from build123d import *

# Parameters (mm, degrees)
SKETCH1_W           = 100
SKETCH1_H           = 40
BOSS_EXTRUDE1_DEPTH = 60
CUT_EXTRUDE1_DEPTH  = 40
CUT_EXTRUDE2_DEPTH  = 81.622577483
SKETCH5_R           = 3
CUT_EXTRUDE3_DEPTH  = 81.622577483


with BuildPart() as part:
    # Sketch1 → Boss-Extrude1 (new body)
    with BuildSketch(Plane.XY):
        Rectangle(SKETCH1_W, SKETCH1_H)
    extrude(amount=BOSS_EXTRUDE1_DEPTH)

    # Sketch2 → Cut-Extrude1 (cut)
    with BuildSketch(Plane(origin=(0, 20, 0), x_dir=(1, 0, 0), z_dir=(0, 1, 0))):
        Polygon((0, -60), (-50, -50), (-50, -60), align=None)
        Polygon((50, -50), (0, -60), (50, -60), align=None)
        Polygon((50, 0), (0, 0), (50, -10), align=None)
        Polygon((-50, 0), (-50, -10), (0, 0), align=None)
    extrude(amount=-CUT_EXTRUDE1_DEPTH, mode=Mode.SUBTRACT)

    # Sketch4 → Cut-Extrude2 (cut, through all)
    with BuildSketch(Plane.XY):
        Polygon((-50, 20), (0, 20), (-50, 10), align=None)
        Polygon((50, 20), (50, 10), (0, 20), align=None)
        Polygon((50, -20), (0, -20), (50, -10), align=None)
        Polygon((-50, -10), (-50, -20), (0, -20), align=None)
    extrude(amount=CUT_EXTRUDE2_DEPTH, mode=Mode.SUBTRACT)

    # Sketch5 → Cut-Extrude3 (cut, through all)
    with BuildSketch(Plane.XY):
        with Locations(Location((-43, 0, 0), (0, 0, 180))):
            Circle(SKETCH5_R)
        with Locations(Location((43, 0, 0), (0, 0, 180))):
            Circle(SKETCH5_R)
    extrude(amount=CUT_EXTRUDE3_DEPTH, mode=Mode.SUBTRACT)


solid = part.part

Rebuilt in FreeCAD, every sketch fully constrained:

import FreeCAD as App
import Part
import Sketcher

V = App.Vector
Q = App.Units.Quantity

doc = App.newDocument("Part")
body = doc.addObject("PartDesign::Body", "Body")

sketch1 = body.newObject("Sketcher::SketchObject", "Sketch")
sketch1.AttachmentSupport = (doc.getObject("XY_Plane"), [""])
sketch1.MapMode = "FlatFace"
sketch1.addGeometry(Part.LineSegment(V(-50, 20, 0), V(-50, -20, 0)), False)
sketch1.addGeometry(Part.LineSegment(V(-50, -20, 0), V(50, -20, 0)), False)
sketch1.addGeometry(Part.LineSegment(V(50, -20, 0), V(50, 20, 0)), False)
sketch1.addGeometry(Part.LineSegment(V(50, 20, 0), V(-50, 20, 0)), False)
sketch1.addConstraint(Sketcher.Constraint("Coincident", 0, 2, 1, 1))
sketch1.addConstraint(Sketcher.Constraint("Coincident", 1, 2, 2, 1))
sketch1.addConstraint(Sketcher.Constraint("Coincident", 2, 2, 3, 1))
sketch1.addConstraint(Sketcher.Constraint("Coincident", 3, 2, 0, 1))
sketch1.addConstraint(Sketcher.Constraint("Vertical", 0))
sketch1.addConstraint(Sketcher.Constraint("Horizontal", 1))
sketch1.addConstraint(Sketcher.Constraint("Vertical", 2))
sketch1.addConstraint(Sketcher.Constraint("Horizontal", 3))
sketch1.addConstraint(Sketcher.Constraint("Symmetric", 0, 2, 2, 2, -1, 1))
sketch1.addConstraint(Sketcher.Constraint("DistanceX", 1, 1, 1, 2, Q("100 mm")))
sketch1.addConstraint(Sketcher.Constraint("DistanceY", 0, 2, 0, 1, Q("40 mm")))
pad1 = body.newObject("PartDesign::Pad", "Pad")
pad1.Profile = sketch1
pad1.Length = 60

sketch2 = body.newObject("Sketcher::SketchObject", "Sketch001")
sketch2.AttachmentSupport = (doc.getObject("XZ_Plane"), [""])
sketch2.MapMode = "FlatFace"
sketch2.AttachmentOffset = App.Placement(V(0, 0, -20), App.Rotation())
sketch2.addGeometry(Part.LineSegment(V(0, 60, 0), V(-50, 50, 0)), False)
sketch2.addGeometry(Part.LineSegment(V(-50, 50, 0), V(-50, 60, 0)), False)
sketch2.addGeometry(Part.LineSegment(V(-50, 60, 0), V(0, 60, 0)), False)
sketch2.addGeometry(Part.LineSegment(V(50, 50, 0), V(0, 60, 0)), False)
sketch2.addGeometry(Part.LineSegment(V(0, 60, 0), V(50, 60, 0)), False)
sketch2.addGeometry(Part.LineSegment(V(50, 60, 0), V(50, 50, 0)), False)
sketch2.addGeometry(Part.LineSegment(V(50, 0, 0), V(0, 0, 0)), False)
sketch2.addGeometry(Part.LineSegment(V(0, 0, 0), V(50, 10, 0)), False)
sketch2.addGeometry(Part.LineSegment(V(50, 10, 0), V(50, 0, 0)), False)
sketch2.addGeometry(Part.LineSegment(V(-50, 0, 0), V(-50, 10, 0)), False)
sketch2.addGeometry(Part.LineSegment(V(-50, 10, 0), V(0, 0, 0)), False)
sketch2.addGeometry(Part.LineSegment(V(0, 0, 0), V(-50, 0, 0)), False)
sketch2.addConstraint(Sketcher.Constraint("Coincident", 0, 2, 1, 1))
sketch2.addConstraint(Sketcher.Constraint("Coincident", 1, 2, 2, 1))
sketch2.addConstraint(Sketcher.Constraint("Coincident", 2, 2, 0, 1))
sketch2.addConstraint(Sketcher.Constraint("Coincident", 3, 2, 4, 1))
sketch2.addConstraint(Sketcher.Constraint("Coincident", 4, 2, 5, 1))
sketch2.addConstraint(Sketcher.Constraint("Coincident", 5, 2, 3, 1))
sketch2.addConstraint(Sketcher.Constraint("Coincident", 6, 2, 7, 1))
sketch2.addConstraint(Sketcher.Constraint("Coincident", 7, 2, 8, 1))
sketch2.addConstraint(Sketcher.Constraint("Coincident", 8, 2, 6, 1))
sketch2.addConstraint(Sketcher.Constraint("Coincident", 9, 2, 10, 1))
sketch2.addConstraint(Sketcher.Constraint("Coincident", 10, 2, 11, 1))
sketch2.addConstraint(Sketcher.Constraint("Coincident", 11, 2, 9, 1))
sketch2.addConstraint(Sketcher.Constraint("Vertical", 1))
sketch2.addConstraint(Sketcher.Constraint("Horizontal", 2))
sketch2.addConstraint(Sketcher.Constraint("Horizontal", 4))
sketch2.addConstraint(Sketcher.Constraint("Vertical", 5))
sketch2.addConstraint(Sketcher.Constraint("Horizontal", 6))
sketch2.addConstraint(Sketcher.Constraint("Vertical", 8))
sketch2.addConstraint(Sketcher.Constraint("Vertical", 9))
sketch2.addConstraint(Sketcher.Constraint("Horizontal", 11))
sketch2.addConstraint(Sketcher.Constraint("Coincident", 6, 2, -1, 1))
sketch2.addConstraint(Sketcher.Constraint("Coincident", 10, 2, -1, 1))
sketch2.addConstraint(Sketcher.Constraint("Coincident", 3, 2, 2, 2))
sketch2.addConstraint(Sketcher.Constraint("Symmetric", 0, 2, 5, 2, -2))
sketch2.addConstraint(Sketcher.Constraint("Symmetric", 7, 2, 9, 2, -2))
sketch2.addConstraint(Sketcher.Constraint("PointOnObject", 2, 2, -2))
sketch2.addConstraint(Sketcher.Constraint("Parallel", 0, 7))
sketch2.addConstraint(Sketcher.Constraint("Vertical", 5, 2, 7, 2))
sketch2.addConstraint(Sketcher.Constraint("DistanceX", 2, 1, 2, 2, Q("50 mm")))
sketch2.addConstraint(Sketcher.Constraint("DistanceY", 1, 1, 1, 2, Q("10 mm")))
sketch2.addConstraint(Sketcher.Constraint("DistanceY", -1, 1, 0, 2, Q("50 mm")))
pocket1 = body.newObject("PartDesign::Pocket", "Pocket")
pocket1.Profile = sketch2
pocket1.Length = 40
pocket1.Reversed = True

sketch3 = body.newObject("Sketcher::SketchObject", "Sketch002")
sketch3.AttachmentSupport = (doc.getObject("XY_Plane"), [""])
sketch3.MapMode = "FlatFace"
sketch3.addGeometry(Part.LineSegment(V(0, 20, 0), V(-50, 20, 0)), False)
sketch3.addGeometry(Part.LineSegment(V(-50, 20, 0), V(-50, 10, 0)), False)
sketch3.addGeometry(Part.LineSegment(V(-50, 10, 0), V(0, 20, 0)), False)
sketch3.addGeometry(Part.LineSegment(V(50, 10, 0), V(50, 20, 0)), False)
sketch3.addGeometry(Part.LineSegment(V(50, 20, 0), V(0, 20, 0)), False)
sketch3.addGeometry(Part.LineSegment(V(0, 20, 0), V(50, 10, 0)), False)
sketch3.addGeometry(Part.LineSegment(V(0, -20, 0), V(50, -20, 0)), False)
sketch3.addGeometry(Part.LineSegment(V(50, -20, 0), V(50, -10, 0)), False)
sketch3.addGeometry(Part.LineSegment(V(50, -10, 0), V(0, -20, 0)), False)
sketch3.addGeometry(Part.LineSegment(V(-50, -10, 0), V(-50, -20, 0)), False)
sketch3.addGeometry(Part.LineSegment(V(-50, -20, 0), V(0, -20, 0)), False)
sketch3.addGeometry(Part.LineSegment(V(0, -20, 0), V(-50, -10, 0)), False)
sketch3.addConstraint(Sketcher.Constraint("Coincident", 0, 2, 1, 1))
sketch3.addConstraint(Sketcher.Constraint("Coincident", 1, 2, 2, 1))
sketch3.addConstraint(Sketcher.Constraint("Coincident", 2, 2, 0, 1))
sketch3.addConstraint(Sketcher.Constraint("Coincident", 3, 2, 4, 1))
sketch3.addConstraint(Sketcher.Constraint("Coincident", 4, 2, 5, 1))
sketch3.addConstraint(Sketcher.Constraint("Coincident", 5, 2, 3, 1))
sketch3.addConstraint(Sketcher.Constraint("Coincident", 6, 2, 7, 1))
sketch3.addConstraint(Sketcher.Constraint("Coincident", 7, 2, 8, 1))
sketch3.addConstraint(Sketcher.Constraint("Coincident", 8, 2, 6, 1))
sketch3.addConstraint(Sketcher.Constraint("Coincident", 9, 2, 10, 1))
sketch3.addConstraint(Sketcher.Constraint("Coincident", 10, 2, 11, 1))
sketch3.addConstraint(Sketcher.Constraint("Coincident", 11, 2, 9, 1))
sketch3.addConstraint(Sketcher.Constraint("Horizontal", 0))
sketch3.addConstraint(Sketcher.Constraint("Vertical", 1))
sketch3.addConstraint(Sketcher.Constraint("Vertical", 3))
sketch3.addConstraint(Sketcher.Constraint("Horizontal", 4))
sketch3.addConstraint(Sketcher.Constraint("Horizontal", 6))
sketch3.addConstraint(Sketcher.Constraint("Vertical", 7))
sketch3.addConstraint(Sketcher.Constraint("Vertical", 9))
sketch3.addConstraint(Sketcher.Constraint("Horizontal", 10))
sketch3.addConstraint(Sketcher.Constraint("Coincident", 4, 2, 2, 2))
sketch3.addConstraint(Sketcher.Constraint("Coincident", 10, 2, 8, 2))
sketch3.addConstraint(Sketcher.Constraint("Symmetric", 0, 2, 6, 2, -1, 1))
sketch3.addConstraint(Sketcher.Constraint("Symmetric", 5, 2, 11, 2, -1, 1))
sketch3.addConstraint(Sketcher.Constraint("Symmetric", 1, 2, 5, 2, -2))
sketch3.addConstraint(Sketcher.Constraint("PointOnObject", 2, 2, -2))
sketch3.addConstraint(Sketcher.Constraint("PointOnObject", 8, 2, -2))
sketch3.addConstraint(Sketcher.Constraint("Parallel", 2, 8))
sketch3.addConstraint(Sketcher.Constraint("DistanceX", 0, 2, 0, 1, Q("50 mm")))
sketch3.addConstraint(Sketcher.Constraint("DistanceY", 1, 2, 1, 1, Q("10 mm")))
sketch3.addConstraint(Sketcher.Constraint("DistanceY", -1, 1, 0, 2, Q("20 mm")))
pocket2 = body.newObject("PartDesign::Pocket", "Pocket001")
pocket2.Profile = sketch3
pocket2.Type = "ThroughAll"
pocket2.Reversed = True

sketch4 = body.newObject("Sketcher::SketchObject", "Sketch003")
sketch4.AttachmentSupport = (doc.getObject("XY_Plane"), [""])
sketch4.MapMode = "FlatFace"
sketch4.addGeometry(Part.Circle(V(-43, 0, 0), V(0, 0, 1), 3), False)
sketch4.addGeometry(Part.Circle(V(43, 0, 0), V(0, 0, 1), 3), False)
sketch4.addConstraint(Sketcher.Constraint("Equal", 0, 1))
sketch4.addConstraint(Sketcher.Constraint("Symmetric", 0, 3, 1, 3, -1, 1))
sketch4.addConstraint(Sketcher.Constraint("PointOnObject", 0, 3, -1))
sketch4.addConstraint(Sketcher.Constraint("Diameter", 0, Q("6 mm")))
sketch4.addConstraint(Sketcher.Constraint("DistanceX", 0, 3, -1, 1, Q("43 mm")))
pocket3 = body.newObject("PartDesign::Pocket", "Pocket002")
pocket3.Profile = sketch4
pocket3.Type = "ThroughAll"
pocket3.Reversed = True

doc.recompute()
